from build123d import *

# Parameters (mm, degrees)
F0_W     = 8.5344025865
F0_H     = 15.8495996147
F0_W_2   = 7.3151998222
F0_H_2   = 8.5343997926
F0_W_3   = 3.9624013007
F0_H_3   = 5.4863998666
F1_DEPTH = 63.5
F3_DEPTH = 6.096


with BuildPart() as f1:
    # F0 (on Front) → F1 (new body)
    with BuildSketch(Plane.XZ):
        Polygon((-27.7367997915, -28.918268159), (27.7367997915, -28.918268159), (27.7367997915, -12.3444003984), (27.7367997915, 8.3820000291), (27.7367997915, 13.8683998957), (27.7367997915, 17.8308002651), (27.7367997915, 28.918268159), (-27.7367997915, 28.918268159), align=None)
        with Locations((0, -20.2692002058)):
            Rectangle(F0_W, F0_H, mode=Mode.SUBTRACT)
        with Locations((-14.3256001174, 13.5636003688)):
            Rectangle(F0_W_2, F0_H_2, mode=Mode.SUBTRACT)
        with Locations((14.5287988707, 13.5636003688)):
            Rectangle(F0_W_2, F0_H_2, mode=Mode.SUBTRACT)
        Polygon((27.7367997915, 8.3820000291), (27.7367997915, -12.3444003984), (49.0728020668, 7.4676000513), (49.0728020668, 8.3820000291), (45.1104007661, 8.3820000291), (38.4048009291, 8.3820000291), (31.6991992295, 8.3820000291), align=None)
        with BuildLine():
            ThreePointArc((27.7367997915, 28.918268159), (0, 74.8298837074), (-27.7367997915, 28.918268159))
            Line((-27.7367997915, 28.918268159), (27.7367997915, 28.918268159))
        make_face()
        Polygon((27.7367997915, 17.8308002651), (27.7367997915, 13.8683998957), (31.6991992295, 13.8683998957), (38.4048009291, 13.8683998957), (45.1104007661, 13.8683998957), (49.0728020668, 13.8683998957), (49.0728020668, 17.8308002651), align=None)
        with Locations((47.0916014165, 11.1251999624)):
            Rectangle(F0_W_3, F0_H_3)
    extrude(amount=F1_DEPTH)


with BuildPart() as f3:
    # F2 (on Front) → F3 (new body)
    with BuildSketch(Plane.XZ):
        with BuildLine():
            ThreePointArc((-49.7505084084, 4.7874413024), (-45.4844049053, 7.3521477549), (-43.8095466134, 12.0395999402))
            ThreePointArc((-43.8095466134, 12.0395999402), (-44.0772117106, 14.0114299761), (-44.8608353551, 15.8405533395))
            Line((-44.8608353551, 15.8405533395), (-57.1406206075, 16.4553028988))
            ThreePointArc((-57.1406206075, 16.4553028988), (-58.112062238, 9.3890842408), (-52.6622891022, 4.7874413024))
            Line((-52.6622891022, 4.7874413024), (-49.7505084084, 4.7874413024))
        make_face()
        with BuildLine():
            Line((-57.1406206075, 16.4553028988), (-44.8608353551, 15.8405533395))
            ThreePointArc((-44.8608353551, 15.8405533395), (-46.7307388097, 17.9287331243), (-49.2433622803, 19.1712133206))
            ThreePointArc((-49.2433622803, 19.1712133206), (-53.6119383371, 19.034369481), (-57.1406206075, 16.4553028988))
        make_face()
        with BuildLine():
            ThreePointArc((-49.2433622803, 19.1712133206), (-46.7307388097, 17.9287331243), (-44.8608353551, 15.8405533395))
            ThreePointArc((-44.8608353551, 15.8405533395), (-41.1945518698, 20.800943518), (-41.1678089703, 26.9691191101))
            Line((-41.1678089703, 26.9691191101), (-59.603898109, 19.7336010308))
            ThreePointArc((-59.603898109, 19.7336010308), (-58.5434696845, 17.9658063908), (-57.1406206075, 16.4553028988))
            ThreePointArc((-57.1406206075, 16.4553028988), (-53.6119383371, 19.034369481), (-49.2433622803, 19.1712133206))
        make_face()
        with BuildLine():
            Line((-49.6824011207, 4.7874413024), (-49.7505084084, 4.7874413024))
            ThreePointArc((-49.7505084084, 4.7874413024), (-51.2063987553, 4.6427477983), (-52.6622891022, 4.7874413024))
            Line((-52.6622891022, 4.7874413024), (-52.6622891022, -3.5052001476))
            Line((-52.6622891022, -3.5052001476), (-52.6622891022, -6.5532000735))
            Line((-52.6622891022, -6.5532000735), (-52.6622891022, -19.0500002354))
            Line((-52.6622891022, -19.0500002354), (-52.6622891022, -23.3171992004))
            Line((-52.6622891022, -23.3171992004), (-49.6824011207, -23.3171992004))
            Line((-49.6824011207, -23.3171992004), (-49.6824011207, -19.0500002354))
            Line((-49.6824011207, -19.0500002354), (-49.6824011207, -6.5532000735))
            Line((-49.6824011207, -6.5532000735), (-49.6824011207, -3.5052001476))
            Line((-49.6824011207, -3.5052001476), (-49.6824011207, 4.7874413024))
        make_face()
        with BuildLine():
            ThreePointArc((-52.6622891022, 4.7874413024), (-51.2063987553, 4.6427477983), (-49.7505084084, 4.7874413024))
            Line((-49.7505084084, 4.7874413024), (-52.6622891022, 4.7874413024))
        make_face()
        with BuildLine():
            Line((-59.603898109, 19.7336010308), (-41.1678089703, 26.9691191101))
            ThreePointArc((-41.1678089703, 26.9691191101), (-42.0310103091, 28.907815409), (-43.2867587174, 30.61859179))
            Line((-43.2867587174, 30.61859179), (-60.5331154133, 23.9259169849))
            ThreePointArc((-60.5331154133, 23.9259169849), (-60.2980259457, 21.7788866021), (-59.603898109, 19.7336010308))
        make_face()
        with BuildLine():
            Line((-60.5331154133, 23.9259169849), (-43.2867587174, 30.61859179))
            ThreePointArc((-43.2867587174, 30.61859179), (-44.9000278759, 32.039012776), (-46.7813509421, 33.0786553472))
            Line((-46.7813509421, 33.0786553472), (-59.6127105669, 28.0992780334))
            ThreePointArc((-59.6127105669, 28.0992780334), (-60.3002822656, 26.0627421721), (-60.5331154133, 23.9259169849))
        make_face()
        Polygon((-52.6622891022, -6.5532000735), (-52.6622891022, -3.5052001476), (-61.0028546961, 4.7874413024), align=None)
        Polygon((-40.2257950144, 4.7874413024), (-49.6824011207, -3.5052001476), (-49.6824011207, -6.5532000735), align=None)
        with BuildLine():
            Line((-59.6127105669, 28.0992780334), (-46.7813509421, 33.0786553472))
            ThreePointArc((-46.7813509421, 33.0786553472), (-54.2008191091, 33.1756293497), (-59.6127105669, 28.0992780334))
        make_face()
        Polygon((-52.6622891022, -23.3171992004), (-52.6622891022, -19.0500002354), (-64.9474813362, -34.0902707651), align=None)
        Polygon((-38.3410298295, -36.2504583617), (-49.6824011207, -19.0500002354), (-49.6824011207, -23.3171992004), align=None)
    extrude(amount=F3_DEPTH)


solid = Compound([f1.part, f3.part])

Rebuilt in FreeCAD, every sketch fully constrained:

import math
import FreeCAD as App
import Part
import Sketcher

V = App.Vector
Q = App.Units.Quantity


def add_polygon(sketch, points):
    """Adds a closed chain of lines whose ends are joined by coincident constraints."""
    first, n = sketch.GeometryCount, len(points)
    for a, b in zip(points, points[1:] + points[:1]):
        sketch.addGeometry(Part.LineSegment(App.Vector(*a, 0), App.Vector(*b, 0)), False)
    for i in range(n):
        sketch.addConstraint(Sketcher.Constraint("Coincident", first + i, 2, first + (i + 1) % n, 1))

doc = App.newDocument("Part")
body = doc.addObject("PartDesign::Body", "Body")

# Sketch on XZ plane
sketch1 = body.newObject("Sketcher::SketchObject", "Sketch")
sketch1.AttachmentSupport = (doc.getObject("XZ_Plane"), [""])
sketch1.MapMode = "FlatFace"
sketch1.addGeometry(Part.LineSegment(V(-27.7368, -28.918268, 0), V(27.7368, -28.918268, 0)), False)  # 0
sketch1.addGeometry(Part.LineSegment(V(27.7368, -28.918268, 0), V(27.7368, -12.3444, 0)), False)  # 1
sketch1.addGeometry(Part.LineSegment(V(27.7368, -12.3444, 0), V(49.072802, 7.4676, 0)), False)  # 2
sketch1.addGeometry(Part.LineSegment(V(49.072802, 7.4676, 0), V(49.072802, 8.382, 0)), False)  # 3
sketch1.addGeometry(Part.LineSegment(V(49.072802, 8.382, 0), V(49.072802, 13.8684, 0)), False)  # 4
sketch1.addGeometry(Part.LineSegment(V(49.072802, 13.8684, 0), V(49.072802, 17.8308, 0)), False)  # 5
sketch1.addGeometry(Part.LineSegment(V(49.072802, 17.8308, 0), V(27.7368, 17.8308, 0)), False)  # 6
sketch1.addGeometry(Part.LineSegment(V(27.7368, 17.8308, 0), V(27.7368, 28.918268, 0)), False)  # 7
sketch1.addGeometry(Part.ArcOfCircle(Part.Circle(V(0, 43.495694, 0), V(0, 0, 1), 31.334189), math.radians(-27.724739), math.radians(207.724739)), False)  # 8
sketch1.addGeometry(Part.LineSegment(V(-27.7368, 28.918268, 0), V(-27.7368, -28.918268, 0)), False)  # 9
add_polygon(sketch1, [(45.110401, 8.382), (27.7368, 8.382), (27.7368, 13.8684), (45.110401, 13.8684)])  # lines 10-13
add_polygon(sketch1, [(4.267201, -28.194), (-4.267201, -28.194), (-4.267201, -12.3444), (4.267201, -12.3444)])  # lines 14-17
add_polygon(sketch1, [(-10.668, 9.2964), (-17.9832, 9.2964), (-17.9832, 17.8308), (-10.668, 17.8308)])  # lines 18-21
add_polygon(sketch1, [(18.186399, 9.2964), (10.871199, 9.2964), (10.871199, 17.8308), (18.186399, 17.8308)])  # lines 22-25
sketch1.addConstraint([
    Sketcher.Constraint("Coincident", 0, 2, 1, 1),
    Sketcher.Constraint("Coincident", 1, 2, 2, 1),
    Sketcher.Constraint("Coincident", 2, 2, 3, 1),
    Sketcher.Constraint("Coincident", 3, 2, 4, 1),
    Sketcher.Constraint("Coincident", 4, 2, 5, 1),
    Sketcher.Constraint("Coincident", 5, 2, 6, 1),
    Sketcher.Constraint("Coincident", 6, 2, 7, 1),
    Sketcher.Constraint("Coincident", 7, 2, 8, 1),
    Sketcher.Constraint("Coincident", 8, 2, 9, 1),
    Sketcher.Constraint("Coincident", 9, 2, 0, 1),
    Sketcher.Constraint("Horizontal", 0),
    Sketcher.Constraint("Vertical", 1),
    Sketcher.Constraint("Vertical", 3),
    Sketcher.Constraint("Vertical", 4),
    Sketcher.Constraint("Vertical", 5),
    Sketcher.Constraint("Horizontal", 6),
    Sketcher.Constraint("Vertical", 7),
    Sketcher.Constraint("Vertical", 9),
    Sketcher.Constraint("Horizontal", 10),
    Sketcher.Constraint("Vertical", 11),
    Sketcher.Constraint("Horizontal", 12),
    Sketcher.Constraint("Vertical", 13),
    Sketcher.Constraint("Horizontal", 14),
    Sketcher.Constraint("Vertical", 15),
    Sketcher.Constraint("Horizontal", 16),
    Sketcher.Constraint("Vertical", 17),
    Sketcher.Constraint("Horizontal", 18),
    Sketcher.Constraint("Vertical", 19),
    Sketcher.Constraint("Horizontal", 20),
    Sketcher.Constraint("Vertical", 21),
    Sketcher.Constraint("Horizontal", 22),
    Sketcher.Constraint("Vertical", 23),
    Sketcher.Constraint("Horizontal", 24),
    Sketcher.Constraint("Vertical", 25),
    Sketcher.Constraint("Symmetric", 0, 2, 8, 2, -1, 1),
    Sketcher.Constraint("Symmetric", 7, 2, 9, 2, -1, 1),
    Sketcher.Constraint("Horizontal", 3, 2, 10, 2),
    Sketcher.Constraint("Horizontal", 4, 2, 11, 2),
    Sketcher.Constraint("Horizontal", 1, 2, 15, 2),
    Sketcher.Constraint("Horizontal", 6, 2, 19, 2),
    Sketcher.Constraint("Horizontal", 21, 2, 22, 2),
    Sketcher.Constraint("Horizontal", 20, 2, 23, 2),
    Sketcher.Constraint("Vertical", 7, 2, 10, 2),
    Sketcher.Constraint("Equal", 20, 22),
    Sketcher.Constraint("DistanceX", 6, 2, 6, 1, Q("0.8400001 in")),
    Sketcher.Constraint("DistanceX", 0, 1, 0, 2, Q("2.184 in")),
    Sketcher.Constraint("DistanceX", 10, 2, 10, 1, Q("0.684 in")),
    Sketcher.Constraint("DistanceX", 14, 2, 14, 1, Q("0.3360001 in")),
    Sketcher.Constraint("DistanceX", 18, 2, 18, 1, Q("0.288 in")),
    Sketcher.Constraint("DistanceY", 3, 1, 3, 2, Q("0.036 in")),
    Sketcher.Constraint("DistanceY", 4, 1, 4, 2, Q("0.216 in")),
    Sketcher.Constraint("DistanceY", 5, 1, 5, 2, Q("0.156 in")),
    Sketcher.Constraint("DistanceY", 15, 1, 15, 2, Q("0.624 in")),
    Sketcher.Constraint("DistanceY", 19, 1, 19, 2, Q("0.336 in")),
    Sketcher.Constraint("DistanceY", -1, 1, 3, 2, Q("0.33 in")),
    Sketcher.Constraint("DistanceY", 14, 2, -1, 1, Q("1.11 in")),
    Sketcher.Constraint("DistanceX", 20, 2, -1, 1, Q("0.42 in")),
    Sketcher.Constraint("DistanceX", 14, 2, 0, 2, Q("1.26 in")),
    Sketcher.Constraint("DistanceX", 16, 2, 22, 2, Q("0.2599999 in")),
    Sketcher.Constraint("Radius", 8, 31.334189),
    Sketcher.Constraint("DistanceY", 1, 1, 1, 2, 16.573868),
])
pad1 = body.newObject("PartDesign::Pad", "Pad")
pad1.Profile = sketch1
pad1.Length = Q("2.5 in")
body2 = doc.addObject("PartDesign::Body", "Body001")

# Sketch on XZ plane
sketch2 = body2.newObject("Sketcher::SketchObject", "Sketch001")
sketch2.AttachmentSupport = (doc.getObject("XZ_Plane001"), [""])
sketch2.MapMode = "FlatFace"
sketch2.addGeometry([
    Part.ArcOfCircle(Part.Circle(V(-51.206399, 12.0396, 0), V(0, 0, 1), 7.396852), math.radians(-78.648606), math.radians(0)),  # 0
    Part.ArcOfCircle(Part.Circle(V(-51.206399, 12.0396, 0), V(0, 0, 1), 7.396852), math.radians(0), math.radians(30.921349)),  # 1
    Part.ArcOfCircle(Part.Circle(V(-50.611347, 23.925917, 0), V(0, 0, 1), 9.921768), math.radians(-54.578617), math.radians(17.861657)),  # 2
    Part.ArcOfCircle(Part.Circle(V(-50.611347, 23.925917, 0), V(0, 0, 1), 9.921768), math.radians(17.861657), math.radians(67.292954)),  # 3
    Part.ArcOfCircle(Part.Circle(V(-50.611347, 23.925917, 0), V(0, 0, 1), 9.921768), math.radians(67.292954), math.radians(155.125838)),  # 4
    Part.ArcOfCircle(Part.Circle(V(-50.611347, 23.925917, 0), V(0, 0, 1), 9.921768), math.radians(155.125838), math.radians(180)),  # 5
    Part.ArcOfCircle(Part.Circle(V(-50.611347, 23.925917, 0), V(0, 0, 1), 9.921768), math.radians(180), math.radians(204.994874)),  # 6
    Part.ArcOfCircle(Part.Circle(V(-50.611347, 23.925917, 0), V(0, 0, 1), 9.921768), math.radians(-155.005126), math.radians(-131.153271)),  # 7
    Part.ArcOfCircle(Part.Circle(V(-51.206399, 12.0396, 0), V(0, 0, 1), 7.396852), math.radians(143.346763), math.radians(258.648606)),  # 8
    Part.LineSegment(V(-52.662289, 4.787441, 0), V(-52.662289, -3.5052, 0)),  # 9
    Part.LineSegment(V(-52.662289, -3.5052, 0), V(-61.002855, 4.787441, 0)),  # 10
    Part.LineSegment(V(-61.002855, 4.787441, 0), V(-52.662289, -6.5532, 0)),  # 11
    Part.LineSegment(V(-52.662289, -6.5532, 0), V(-52.662289, -19.05, 0)),  # 12
    Part.LineSegment(V(-52.662289, -19.05, 0), V(-64.947481, -34.090271, 0)),  # 13
    Part.LineSegment(V(-64.947481, -34.090271, 0), V(-52.662289, -23.317199, 0)),  # 14
    Part.LineSegment(V(-52.662289, -23.317199, 0), V(-49.682401, -23.317199, 0)),  # 15
    Part.LineSegment(V(-49.682401, -23.317199, 0), V(-38.34103, -36.250458, 0)),  # 16
    Part.LineSegment(V(-38.34103, -36.250458, 0), V(-49.682401, -19.05, 0)),  # 17
    Part.LineSegment(V(-49.682401, -19.05, 0), V(-49.682401, -6.5532, 0)),  # 18
    Part.LineSegment(V(-49.682401, -6.5532, 0), V(-40.225795, 4.787441, 0)),  # 19
    Part.LineSegment(V(-40.225795, 4.787441, 0), V(-49.682401, -3.5052, 0)),  # 20
    Part.LineSegment(V(-49.682401, -3.5052, 0), V(-49.682401, 4.787441, 0)),  # 21
    Part.LineSegment(V(-49.682401, 4.787441, 0), V(-49.750508, 4.787441, 0)),  # 22
], False)
sketch2.addConstraint([
    Sketcher.Constraint("Tangent", 0, 2, 1, 1),
    Sketcher.Constraint("Coincident", 1, 2, 2, 1),
    Sketcher.Constraint("Tangent", 2, 2, 3, 1),
    Sketcher.Constraint("Tangent", 3, 2, 4, 1),
    Sketcher.Constraint("Tangent", 4, 2, 5, 1),
    Sketcher.Constraint("Tangent", 5, 2, 6, 1),
    Sketcher.Constraint("Tangent", 6, 2, 7, 1),
    Sketcher.Constraint("Coincident", 7, 2, 8, 1),
    Sketcher.Constraint("Coincident", 8, 2, 9, 1),
    Sketcher.Constraint("Coincident", 9, 2, 10, 1),
    Sketcher.Constraint("Coincident", 10, 2, 11, 1),
    Sketcher.Constraint("Coincident", 11, 2, 12, 1),
    Sketcher.Constraint("Coincident", 12, 2, 13, 1),
    Sketcher.Constraint("Coincident", 13, 2, 14, 1),
    Sketcher.Constraint("Coincident", 14, 2, 15, 1),
    Sketcher.Constraint("Coincident", 15, 2, 16, 1),
    Sketcher.Constraint("Coincident", 16, 2, 17, 1),
    Sketcher.Constraint("Coincident", 17, 2, 18, 1),
    Sketcher.Constraint("Coincident", 18, 2, 19, 1),
    Sketcher.Constraint("Coincident", 19, 2, 20, 1),
    Sketcher.Constraint("Coincident", 20, 2, 21, 1),
    Sketcher.Constraint("Coincident", 21, 2, 22, 1),
    Sketcher.Constraint("Coincident", 22, 2, 0, 1),
    Sketcher.Constraint("Vertical", 9),
    Sketcher.Constraint("Vertical", 12),
    Sketcher.Constraint("Horizontal", 15),
    Sketcher.Constraint("Vertical", 18),
    Sketcher.Constraint("Vertical", 21),
    Sketcher.Constraint("Horizontal", 22),
    Sketcher.Constraint("Coincident", 4, 3, 2, 3),
    Sketcher.Constraint("Coincident", 6, 3, 2, 3),
    Sketcher.Constraint("Coincident", 8, 3, 0, 3),
    Sketcher.Constraint("Equal", 0, 1),
    Sketcher.Constraint("Equal", 6, 7),
    Sketcher.Constraint("Equal", 1, 8),
    Sketcher.Constraint("Perpendicular", 14, 16),
    Sketcher.Constraint("Perpendicular", 16, 20),
    Sketcher.Constraint("Horizontal", 8, 3, 0, 2),
    Sketcher.Constraint("Horizontal", 7, 3, 5, 2),
    Sketcher.Constraint("Horizontal", 8, 2, 10, 2),
    Sketcher.Constraint("Horizontal", 12, 2, 17, 2),
    Sketcher.Constraint("Horizontal", 11, 2, 18, 2),
    Sketcher.Constraint("Horizontal", 10, 2, 19, 2),
    Sketcher.Constraint("Horizontal", 9, 2, 20, 2),
    Sketcher.Constraint("Horizontal", 19, 2, 21, 2),
    Sketcher.Constraint("Vertical", 9, 2, 11, 2),
    Sketcher.Constraint("Vertical", 12, 2, 14, 2),
    Sketcher.Constraint("Vertical", 15, 2, 17, 2),
    Sketcher.Constraint("Vertical", 18, 2, 20, 2),
    Sketcher.Constraint("DistanceY", 12, 2, 12, 1, Q("0.492 in")),
    Sketcher.Constraint("DistanceY", 12, 2, -1, 1, Q("0.75 in")),
    Sketcher.Constraint("DistanceY", 11, 2, 9, 2, Q("0.12 in")),
    Sketcher.Constraint("DistanceY", 14, 2, 11, 2, Q("0.66 in")),
    Sketcher.Constraint("DistanceX", 0, 3, 21, 2, Q("0.0599999 in")),
    Sketcher.Constraint("DistanceX", 0, 3, -1, 1, Q("2.016 in")),
    Sketcher.Constraint("DistanceY", -1, 1, 0, 3, Q("0.474 in")),
    Sketcher.Constraint("Radius", 2, 9.921768),
    Sketcher.Constraint("Radius", 0, 7.396852),
    Sketcher.Constraint("DistanceY", 9, 2, 9, 1, 8.292641),
    Sketcher.Constraint("DistanceX", 6, 2, -1, 1, 59.603898),
    Sketcher.Constraint("DistanceY", -1, 1, 6, 2, 19.733601),
    Sketcher.Constraint("DistanceX", 6, 3, 0, 2, 6.8018),
    Sketcher.Constraint("Distance", 11, 14.077471),
    Sketcher.Constraint("Distance", 13, 19.419982),
    Sketcher.Constraint("Distance", 20, 12.577571),
    Sketcher.Constraint("DistanceX", 2, 2, -1, 1, 41.167809),
    Sketcher.Constraint("DistanceX", 3, 2, -1, 1, 46.781351),
    Sketcher.Constraint("DistanceX", 4, 2, -1, 1, 59.612711),
    Sketcher.Constraint("DistanceX", 16, 2, -1, 1, 38.34103),
])
pad2 = body2.newObject("PartDesign::Pad", "Pad001")
pad2.Profile = sketch2
pad2.Length = Q("0.24 in")

doc.recompute()
